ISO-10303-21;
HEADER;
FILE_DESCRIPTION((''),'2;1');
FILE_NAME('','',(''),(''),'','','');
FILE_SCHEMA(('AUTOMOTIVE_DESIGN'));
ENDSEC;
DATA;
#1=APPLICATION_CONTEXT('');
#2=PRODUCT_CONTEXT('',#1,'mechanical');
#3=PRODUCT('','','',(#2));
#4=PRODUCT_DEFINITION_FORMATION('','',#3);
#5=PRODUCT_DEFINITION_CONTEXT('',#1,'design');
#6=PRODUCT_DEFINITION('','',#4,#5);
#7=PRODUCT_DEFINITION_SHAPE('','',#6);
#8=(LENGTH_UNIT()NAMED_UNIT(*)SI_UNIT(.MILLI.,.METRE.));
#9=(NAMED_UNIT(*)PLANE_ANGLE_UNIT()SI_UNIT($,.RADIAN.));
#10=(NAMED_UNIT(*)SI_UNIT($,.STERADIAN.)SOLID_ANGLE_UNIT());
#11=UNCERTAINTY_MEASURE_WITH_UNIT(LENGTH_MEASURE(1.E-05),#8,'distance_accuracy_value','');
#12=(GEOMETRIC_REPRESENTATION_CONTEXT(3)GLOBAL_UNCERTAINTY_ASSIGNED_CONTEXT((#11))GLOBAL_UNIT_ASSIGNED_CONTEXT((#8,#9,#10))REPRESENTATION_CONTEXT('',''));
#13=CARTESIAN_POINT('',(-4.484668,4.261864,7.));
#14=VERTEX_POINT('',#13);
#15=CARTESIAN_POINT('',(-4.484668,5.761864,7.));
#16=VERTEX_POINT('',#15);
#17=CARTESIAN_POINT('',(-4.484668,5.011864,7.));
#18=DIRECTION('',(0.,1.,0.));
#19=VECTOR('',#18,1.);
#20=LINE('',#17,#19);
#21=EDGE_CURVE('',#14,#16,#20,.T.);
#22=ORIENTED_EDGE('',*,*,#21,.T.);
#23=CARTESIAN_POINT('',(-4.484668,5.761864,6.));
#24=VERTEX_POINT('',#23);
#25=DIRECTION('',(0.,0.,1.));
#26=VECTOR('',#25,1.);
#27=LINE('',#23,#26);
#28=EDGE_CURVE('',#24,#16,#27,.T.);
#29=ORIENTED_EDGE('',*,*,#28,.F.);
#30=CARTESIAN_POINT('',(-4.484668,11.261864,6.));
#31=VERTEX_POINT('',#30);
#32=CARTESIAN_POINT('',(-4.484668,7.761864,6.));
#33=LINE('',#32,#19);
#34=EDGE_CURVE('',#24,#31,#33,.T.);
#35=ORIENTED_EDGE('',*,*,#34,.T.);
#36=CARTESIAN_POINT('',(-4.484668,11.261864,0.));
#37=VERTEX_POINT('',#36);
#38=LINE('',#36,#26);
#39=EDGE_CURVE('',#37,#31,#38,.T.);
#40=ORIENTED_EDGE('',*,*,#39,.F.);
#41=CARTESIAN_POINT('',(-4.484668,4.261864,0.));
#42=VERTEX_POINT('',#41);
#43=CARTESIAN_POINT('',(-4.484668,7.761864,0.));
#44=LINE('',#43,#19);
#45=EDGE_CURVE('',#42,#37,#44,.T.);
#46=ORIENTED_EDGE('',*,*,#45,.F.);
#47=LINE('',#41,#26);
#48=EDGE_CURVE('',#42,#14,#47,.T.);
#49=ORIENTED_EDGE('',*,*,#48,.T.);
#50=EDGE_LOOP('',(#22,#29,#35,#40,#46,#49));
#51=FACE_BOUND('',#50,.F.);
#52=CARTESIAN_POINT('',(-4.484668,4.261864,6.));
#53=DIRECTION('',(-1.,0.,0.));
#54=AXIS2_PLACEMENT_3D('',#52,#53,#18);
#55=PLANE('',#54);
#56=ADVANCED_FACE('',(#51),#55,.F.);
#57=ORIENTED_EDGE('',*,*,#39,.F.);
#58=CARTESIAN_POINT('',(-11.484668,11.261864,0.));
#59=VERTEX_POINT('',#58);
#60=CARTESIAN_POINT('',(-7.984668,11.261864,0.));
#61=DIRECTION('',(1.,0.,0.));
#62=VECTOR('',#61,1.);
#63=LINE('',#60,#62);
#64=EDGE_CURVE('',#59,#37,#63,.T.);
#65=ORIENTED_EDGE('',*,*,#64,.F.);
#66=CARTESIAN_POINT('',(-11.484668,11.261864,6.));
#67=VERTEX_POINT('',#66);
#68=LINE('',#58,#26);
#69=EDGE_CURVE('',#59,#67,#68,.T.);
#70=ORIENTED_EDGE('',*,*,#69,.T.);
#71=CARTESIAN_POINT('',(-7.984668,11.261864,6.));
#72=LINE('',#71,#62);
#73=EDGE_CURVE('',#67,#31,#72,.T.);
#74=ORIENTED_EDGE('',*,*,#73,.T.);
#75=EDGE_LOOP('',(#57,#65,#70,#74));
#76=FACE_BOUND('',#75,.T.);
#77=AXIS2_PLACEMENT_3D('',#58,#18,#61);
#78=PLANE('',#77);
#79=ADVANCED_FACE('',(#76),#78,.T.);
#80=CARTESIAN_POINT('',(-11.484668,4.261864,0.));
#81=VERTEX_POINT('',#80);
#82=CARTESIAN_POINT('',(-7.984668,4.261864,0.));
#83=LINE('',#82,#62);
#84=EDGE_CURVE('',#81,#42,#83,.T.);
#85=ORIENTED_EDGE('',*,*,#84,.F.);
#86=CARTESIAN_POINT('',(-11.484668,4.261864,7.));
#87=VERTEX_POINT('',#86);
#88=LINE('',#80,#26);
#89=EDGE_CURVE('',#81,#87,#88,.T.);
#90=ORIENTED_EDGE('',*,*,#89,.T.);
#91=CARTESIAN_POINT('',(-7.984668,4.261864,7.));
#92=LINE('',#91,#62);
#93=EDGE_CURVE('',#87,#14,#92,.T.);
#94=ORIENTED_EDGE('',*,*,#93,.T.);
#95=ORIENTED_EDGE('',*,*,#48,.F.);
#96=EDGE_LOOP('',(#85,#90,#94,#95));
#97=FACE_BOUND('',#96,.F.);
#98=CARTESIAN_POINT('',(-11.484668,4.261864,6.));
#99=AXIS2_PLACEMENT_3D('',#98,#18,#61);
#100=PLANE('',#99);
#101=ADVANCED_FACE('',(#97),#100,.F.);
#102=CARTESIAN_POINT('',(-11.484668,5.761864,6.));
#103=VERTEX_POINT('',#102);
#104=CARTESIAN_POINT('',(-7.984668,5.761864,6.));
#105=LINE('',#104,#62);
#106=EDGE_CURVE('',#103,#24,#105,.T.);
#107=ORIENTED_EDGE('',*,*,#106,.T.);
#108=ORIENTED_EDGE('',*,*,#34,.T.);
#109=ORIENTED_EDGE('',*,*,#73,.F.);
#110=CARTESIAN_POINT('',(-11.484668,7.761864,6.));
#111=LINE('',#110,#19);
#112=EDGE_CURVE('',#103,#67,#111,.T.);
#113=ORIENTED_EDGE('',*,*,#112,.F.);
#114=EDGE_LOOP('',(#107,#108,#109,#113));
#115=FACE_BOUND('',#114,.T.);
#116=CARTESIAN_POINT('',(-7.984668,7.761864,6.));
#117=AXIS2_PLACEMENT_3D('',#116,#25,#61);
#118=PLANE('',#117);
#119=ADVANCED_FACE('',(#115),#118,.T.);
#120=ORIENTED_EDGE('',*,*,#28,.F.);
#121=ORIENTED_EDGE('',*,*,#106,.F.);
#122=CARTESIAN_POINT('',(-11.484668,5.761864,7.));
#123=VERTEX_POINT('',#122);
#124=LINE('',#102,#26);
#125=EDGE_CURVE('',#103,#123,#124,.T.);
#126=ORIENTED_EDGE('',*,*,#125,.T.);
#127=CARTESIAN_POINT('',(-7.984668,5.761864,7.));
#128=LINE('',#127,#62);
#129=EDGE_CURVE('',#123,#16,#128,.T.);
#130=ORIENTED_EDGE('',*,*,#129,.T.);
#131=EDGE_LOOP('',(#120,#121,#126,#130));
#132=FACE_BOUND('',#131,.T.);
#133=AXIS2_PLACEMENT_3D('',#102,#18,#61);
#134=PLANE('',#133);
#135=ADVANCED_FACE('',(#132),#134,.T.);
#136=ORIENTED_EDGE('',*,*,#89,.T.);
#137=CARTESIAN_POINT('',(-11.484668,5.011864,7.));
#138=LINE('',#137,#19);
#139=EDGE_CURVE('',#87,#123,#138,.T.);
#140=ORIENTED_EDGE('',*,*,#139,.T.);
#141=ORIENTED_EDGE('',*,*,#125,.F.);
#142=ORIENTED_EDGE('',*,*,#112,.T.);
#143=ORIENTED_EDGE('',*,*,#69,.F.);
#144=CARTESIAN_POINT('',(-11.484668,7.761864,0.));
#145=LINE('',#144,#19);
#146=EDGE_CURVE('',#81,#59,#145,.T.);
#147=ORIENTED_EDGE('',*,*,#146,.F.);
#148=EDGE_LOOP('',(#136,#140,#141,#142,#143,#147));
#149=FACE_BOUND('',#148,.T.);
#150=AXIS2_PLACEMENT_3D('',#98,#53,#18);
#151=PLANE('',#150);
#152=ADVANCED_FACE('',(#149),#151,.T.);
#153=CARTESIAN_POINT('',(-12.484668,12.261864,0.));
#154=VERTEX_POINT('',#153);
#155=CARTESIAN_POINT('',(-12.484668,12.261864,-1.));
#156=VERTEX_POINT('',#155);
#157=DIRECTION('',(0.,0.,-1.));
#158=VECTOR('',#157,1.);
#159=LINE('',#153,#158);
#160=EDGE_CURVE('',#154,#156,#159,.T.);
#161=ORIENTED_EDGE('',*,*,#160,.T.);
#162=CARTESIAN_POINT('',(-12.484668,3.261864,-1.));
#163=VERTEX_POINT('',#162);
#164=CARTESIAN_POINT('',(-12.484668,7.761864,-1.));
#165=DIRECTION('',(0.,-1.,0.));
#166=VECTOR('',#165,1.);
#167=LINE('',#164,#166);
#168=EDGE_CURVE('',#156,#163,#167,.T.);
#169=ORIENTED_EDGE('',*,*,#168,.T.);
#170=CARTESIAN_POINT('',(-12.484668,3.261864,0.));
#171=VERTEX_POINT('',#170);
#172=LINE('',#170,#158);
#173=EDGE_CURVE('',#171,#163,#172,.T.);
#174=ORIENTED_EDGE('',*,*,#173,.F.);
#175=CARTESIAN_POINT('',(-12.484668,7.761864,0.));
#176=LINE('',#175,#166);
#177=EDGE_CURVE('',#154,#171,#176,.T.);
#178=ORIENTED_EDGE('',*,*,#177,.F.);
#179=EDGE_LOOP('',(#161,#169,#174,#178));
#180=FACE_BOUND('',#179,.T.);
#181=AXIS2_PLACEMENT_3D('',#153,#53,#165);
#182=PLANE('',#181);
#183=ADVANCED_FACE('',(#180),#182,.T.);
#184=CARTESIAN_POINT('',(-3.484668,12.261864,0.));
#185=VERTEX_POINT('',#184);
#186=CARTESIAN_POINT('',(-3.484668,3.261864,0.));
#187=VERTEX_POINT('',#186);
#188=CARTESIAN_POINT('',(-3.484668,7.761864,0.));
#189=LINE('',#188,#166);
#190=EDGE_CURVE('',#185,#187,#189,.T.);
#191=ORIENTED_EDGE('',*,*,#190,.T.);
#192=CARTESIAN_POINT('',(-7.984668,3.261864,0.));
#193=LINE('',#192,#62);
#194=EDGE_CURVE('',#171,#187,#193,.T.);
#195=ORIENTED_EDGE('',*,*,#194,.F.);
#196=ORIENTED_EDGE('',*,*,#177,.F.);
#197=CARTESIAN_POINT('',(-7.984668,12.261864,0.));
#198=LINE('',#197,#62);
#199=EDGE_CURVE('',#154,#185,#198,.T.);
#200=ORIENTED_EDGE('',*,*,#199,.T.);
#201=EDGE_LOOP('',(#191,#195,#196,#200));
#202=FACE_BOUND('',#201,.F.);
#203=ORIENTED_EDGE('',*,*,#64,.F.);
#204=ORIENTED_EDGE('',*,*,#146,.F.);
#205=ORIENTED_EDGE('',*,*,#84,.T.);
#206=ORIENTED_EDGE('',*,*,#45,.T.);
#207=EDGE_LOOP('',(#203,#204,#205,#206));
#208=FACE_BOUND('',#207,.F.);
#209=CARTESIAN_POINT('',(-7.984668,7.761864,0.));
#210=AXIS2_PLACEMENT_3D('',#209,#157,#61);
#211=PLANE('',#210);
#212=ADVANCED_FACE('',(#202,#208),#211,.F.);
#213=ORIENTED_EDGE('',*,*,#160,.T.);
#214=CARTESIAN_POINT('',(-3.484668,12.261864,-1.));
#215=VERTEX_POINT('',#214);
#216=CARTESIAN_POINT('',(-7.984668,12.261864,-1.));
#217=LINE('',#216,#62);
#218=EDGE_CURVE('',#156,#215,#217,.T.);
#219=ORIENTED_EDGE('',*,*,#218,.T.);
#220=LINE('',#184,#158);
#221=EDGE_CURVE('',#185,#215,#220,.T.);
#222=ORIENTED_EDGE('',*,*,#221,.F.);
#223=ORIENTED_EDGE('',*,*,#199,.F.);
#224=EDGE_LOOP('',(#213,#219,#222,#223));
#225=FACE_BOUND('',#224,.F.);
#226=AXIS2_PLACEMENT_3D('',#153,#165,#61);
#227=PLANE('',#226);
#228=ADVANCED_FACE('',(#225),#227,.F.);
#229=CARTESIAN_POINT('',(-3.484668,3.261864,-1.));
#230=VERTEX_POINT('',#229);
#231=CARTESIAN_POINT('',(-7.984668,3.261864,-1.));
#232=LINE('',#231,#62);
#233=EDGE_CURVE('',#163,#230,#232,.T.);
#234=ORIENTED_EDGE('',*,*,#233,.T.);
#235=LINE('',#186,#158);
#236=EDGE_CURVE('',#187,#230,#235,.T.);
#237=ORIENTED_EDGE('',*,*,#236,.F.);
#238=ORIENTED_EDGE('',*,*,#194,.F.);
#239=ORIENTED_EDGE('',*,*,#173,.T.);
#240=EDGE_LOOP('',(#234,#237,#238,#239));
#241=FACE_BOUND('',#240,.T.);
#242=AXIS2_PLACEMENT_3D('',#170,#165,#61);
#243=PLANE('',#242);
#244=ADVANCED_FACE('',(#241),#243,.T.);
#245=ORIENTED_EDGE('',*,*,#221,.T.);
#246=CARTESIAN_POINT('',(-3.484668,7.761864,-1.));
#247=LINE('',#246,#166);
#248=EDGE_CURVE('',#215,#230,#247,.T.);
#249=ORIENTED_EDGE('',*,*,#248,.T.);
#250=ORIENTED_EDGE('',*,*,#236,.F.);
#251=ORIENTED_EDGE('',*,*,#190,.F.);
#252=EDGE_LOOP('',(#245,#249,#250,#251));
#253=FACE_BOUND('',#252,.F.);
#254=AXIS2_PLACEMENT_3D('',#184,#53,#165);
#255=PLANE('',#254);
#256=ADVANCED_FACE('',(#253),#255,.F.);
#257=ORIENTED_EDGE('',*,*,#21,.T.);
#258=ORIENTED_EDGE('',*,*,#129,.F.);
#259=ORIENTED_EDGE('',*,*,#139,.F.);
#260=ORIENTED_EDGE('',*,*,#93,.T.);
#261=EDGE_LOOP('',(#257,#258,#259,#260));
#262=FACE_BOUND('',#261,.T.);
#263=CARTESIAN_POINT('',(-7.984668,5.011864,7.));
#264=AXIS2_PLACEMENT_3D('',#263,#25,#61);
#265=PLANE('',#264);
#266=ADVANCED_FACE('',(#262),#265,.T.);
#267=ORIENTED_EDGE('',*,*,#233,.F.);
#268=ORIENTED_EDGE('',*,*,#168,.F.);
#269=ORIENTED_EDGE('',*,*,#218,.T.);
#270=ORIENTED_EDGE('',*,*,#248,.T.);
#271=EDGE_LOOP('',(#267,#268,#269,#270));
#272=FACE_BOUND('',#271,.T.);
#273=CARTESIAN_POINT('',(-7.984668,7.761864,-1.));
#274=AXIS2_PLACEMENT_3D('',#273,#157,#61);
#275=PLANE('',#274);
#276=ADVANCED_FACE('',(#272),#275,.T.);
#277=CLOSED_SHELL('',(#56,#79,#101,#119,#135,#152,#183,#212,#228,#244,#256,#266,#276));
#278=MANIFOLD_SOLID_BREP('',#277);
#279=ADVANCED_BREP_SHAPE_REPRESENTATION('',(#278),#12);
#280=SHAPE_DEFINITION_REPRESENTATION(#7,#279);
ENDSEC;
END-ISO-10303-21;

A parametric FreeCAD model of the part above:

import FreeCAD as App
import Part
import Sketcher
from FreeCAD import Vector


def add_polygon(sketch, points):
    """Adds a closed chain of lines whose ends are joined by coincident constraints."""
    first, n = sketch.GeometryCount, len(points)
    for a, b in zip(points, points[1:] + points[:1]):
        sketch.addGeometry(Part.LineSegment(App.Vector(*a, 0), App.Vector(*b, 0)), False)
    for i in range(n):
        sketch.addConstraint(Sketcher.Constraint("Coincident", first + i, 2, first + (i + 1) % n, 1))

doc = App.newDocument("Part")
body = doc.addObject("PartDesign::Body", "Body")

sketch1 = body.newObject("Sketcher::SketchObject", "Sketch")
sketch1.AttachmentSupport = (doc.getObject("XY_Plane"), [""])
sketch1.MapMode = "FlatFace"
add_polygon(sketch1, [(-11, 11), (-11, 4), (-4, 4), (-4, 11)])
sketch1.addConstraint(Sketcher.Constraint("Vertical", 0))
sketch1.addConstraint(Sketcher.Constraint("Horizontal", 1))
sketch1.addConstraint(Sketcher.Constraint("Vertical", 2))
sketch1.addConstraint(Sketcher.Constraint("Horizontal", 3))
sketch1.addConstraint(Sketcher.Constraint("Equal", 3, 0))
sketch1.addConstraint(Sketcher.Constraint("DistanceX", 1, 1, 1, 2, 7.0))
sketch1.addConstraint(Sketcher.Constraint("DistanceX", 0, 2, -1, 1, 11.484668))
sketch1.addConstraint(Sketcher.Constraint("DistanceY", -1, 1, 0, 2, 4.261864))
pad1 = body.newObject("PartDesign::Pad", "Pad")
pad1.Profile = sketch1
pad1.Length = 6

sketch2 = body.newObject("Sketcher::SketchObject", "Sketch001")
sketch2.AttachmentSupport = (doc.getObject("XY_Plane"), [""])
sketch2.MapMode = "FlatFace"
add_polygon(sketch2, [(-12, 3), (-12, 12), (-3, 12), (-3, 3)])
sketch2.addConstraint(Sketcher.Constraint("Vertical", 0))
sketch2.addConstraint(Sketcher.Constraint("Horizontal", 1))
sketch2.addConstraint(Sketcher.Constraint("Vertical", 2))
sketch2.addConstraint(Sketcher.Constraint("Horizontal", 3))
sketch2.addConstraint(Sketcher.Constraint("Equal", 3, 0))
sketch2.addConstraint(Sketcher.Constraint("DistanceX", 1, 1, 1, 2, 9.0))
sketch2.addConstraint(Sketcher.Constraint("DistanceX", 0, 2, -1, 1, 12.484668))
sketch2.addConstraint(Sketcher.Constraint("DistanceY", -1, 1, 0, 2, 12.261864))
pad2 = body.newObject("PartDesign::Pad", "Pad001")
pad2.Profile = sketch2
pad2.Length = 1
pad2.Reversed = True

sketch3 = body.newObject("Sketcher::SketchObject", "Sketch002")
sketch3.AttachmentSupport = (doc.getObject("XY_Plane"), [""])
sketch3.MapMode = "FlatFace"
sketch3.AttachmentOffset = App.Placement(Vector(0, 0, 6), App.Rotation())
add_polygon(sketch3, [(-11.5, 5.8), (-11.5, 4.3), (-4.5, 4.3), (-4.5, 5.8)])
sketch3.addConstraint(Sketcher.Constraint("Vertical", 0))
sketch3.addConstraint(Sketcher.Constraint("Horizontal", 1))
sketch3.addConstraint(Sketcher.Constraint("Vertical", 2))
sketch3.addConstraint(Sketcher.Constraint("Horizontal", 3))
sketch3.addConstraint(Sketcher.Constraint("DistanceX", 1, 1, 1, 2, 7.0))
sketch3.addConstraint(Sketcher.Constraint("DistanceY", 0, 2, 0, 1, 1.5))
sketch3.addConstraint(Sketcher.Constraint("DistanceX", 0, 2, -1, 1, 11.484668))
sketch3.addConstraint(Sketcher.Constraint("DistanceY", -1, 1, 0, 2, 4.261864))
pad3 = body.newObject("PartDesign::Pad", "Pad002")
pad3.Profile = sketch3
pad3.Length = 1

doc.recompute()
